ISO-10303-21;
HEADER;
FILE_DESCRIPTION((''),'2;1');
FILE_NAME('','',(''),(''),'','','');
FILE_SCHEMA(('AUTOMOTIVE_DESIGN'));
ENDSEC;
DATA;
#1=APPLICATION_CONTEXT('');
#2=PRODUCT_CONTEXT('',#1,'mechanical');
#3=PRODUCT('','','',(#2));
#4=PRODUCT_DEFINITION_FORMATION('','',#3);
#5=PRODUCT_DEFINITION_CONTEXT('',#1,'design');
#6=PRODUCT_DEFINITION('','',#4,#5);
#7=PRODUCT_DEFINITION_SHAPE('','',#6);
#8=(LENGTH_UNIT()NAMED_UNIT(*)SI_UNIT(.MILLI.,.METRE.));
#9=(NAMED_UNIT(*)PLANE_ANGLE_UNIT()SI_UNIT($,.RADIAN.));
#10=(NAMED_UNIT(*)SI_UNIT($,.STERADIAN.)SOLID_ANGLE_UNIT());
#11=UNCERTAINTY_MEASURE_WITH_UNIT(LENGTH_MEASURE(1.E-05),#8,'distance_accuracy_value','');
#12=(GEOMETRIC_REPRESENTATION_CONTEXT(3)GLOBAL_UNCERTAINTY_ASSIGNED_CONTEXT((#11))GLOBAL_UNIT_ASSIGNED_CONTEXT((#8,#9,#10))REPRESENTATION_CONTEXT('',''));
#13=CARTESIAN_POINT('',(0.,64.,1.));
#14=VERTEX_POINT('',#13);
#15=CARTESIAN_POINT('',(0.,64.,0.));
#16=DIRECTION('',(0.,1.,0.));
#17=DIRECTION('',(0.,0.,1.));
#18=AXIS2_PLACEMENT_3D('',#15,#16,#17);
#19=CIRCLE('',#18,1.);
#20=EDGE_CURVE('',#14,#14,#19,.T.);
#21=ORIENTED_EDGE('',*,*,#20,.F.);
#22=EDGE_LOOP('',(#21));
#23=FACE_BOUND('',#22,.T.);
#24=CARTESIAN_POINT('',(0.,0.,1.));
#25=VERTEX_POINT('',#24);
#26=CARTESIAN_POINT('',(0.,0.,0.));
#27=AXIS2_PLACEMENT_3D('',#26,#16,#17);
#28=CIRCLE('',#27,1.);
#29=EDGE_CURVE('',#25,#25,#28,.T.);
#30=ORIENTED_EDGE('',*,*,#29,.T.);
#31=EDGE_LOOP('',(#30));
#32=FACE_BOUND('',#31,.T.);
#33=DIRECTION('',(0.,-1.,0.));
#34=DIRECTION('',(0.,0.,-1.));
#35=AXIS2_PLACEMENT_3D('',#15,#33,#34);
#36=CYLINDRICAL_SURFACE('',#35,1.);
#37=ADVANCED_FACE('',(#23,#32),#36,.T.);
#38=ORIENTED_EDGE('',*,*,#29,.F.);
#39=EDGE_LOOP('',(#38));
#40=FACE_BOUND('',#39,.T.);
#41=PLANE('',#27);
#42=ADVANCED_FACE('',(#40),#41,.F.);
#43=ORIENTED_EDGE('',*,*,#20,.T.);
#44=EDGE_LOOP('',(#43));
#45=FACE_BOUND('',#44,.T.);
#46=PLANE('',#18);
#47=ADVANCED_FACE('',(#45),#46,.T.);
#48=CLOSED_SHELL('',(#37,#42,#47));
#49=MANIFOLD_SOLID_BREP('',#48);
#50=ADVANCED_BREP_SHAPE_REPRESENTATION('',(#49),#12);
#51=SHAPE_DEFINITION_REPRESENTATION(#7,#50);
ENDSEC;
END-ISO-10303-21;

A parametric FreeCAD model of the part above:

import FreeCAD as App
import Part
import Sketcher

V = App.Vector
Q = App.Units.Quantity

doc = App.newDocument("Part")
body = doc.addObject("PartDesign::Body", "Body")

# Sketch on XZ plane
sketch1 = body.newObject("Sketcher::SketchObject", "Sketch")
sketch1.AttachmentSupport = (doc.getObject("XZ_Plane"), [""])
sketch1.MapMode = "FlatFace"
sketch1.addGeometry(Part.Circle(V(0, 0, 0), V(0, 0, 1), 1), False)
sketch1.addConstraint(Sketcher.Constraint("Coincident", 0, 3, -1, 1))
sketch1.addConstraint(Sketcher.Constraint("Diameter", 0, Q("2 mm")))
pad1 = body.newObject("PartDesign::Pad", "Pad")
pad1.Profile = sketch1
pad1.Length = 64
pad1.Reversed = True

doc.recompute()
